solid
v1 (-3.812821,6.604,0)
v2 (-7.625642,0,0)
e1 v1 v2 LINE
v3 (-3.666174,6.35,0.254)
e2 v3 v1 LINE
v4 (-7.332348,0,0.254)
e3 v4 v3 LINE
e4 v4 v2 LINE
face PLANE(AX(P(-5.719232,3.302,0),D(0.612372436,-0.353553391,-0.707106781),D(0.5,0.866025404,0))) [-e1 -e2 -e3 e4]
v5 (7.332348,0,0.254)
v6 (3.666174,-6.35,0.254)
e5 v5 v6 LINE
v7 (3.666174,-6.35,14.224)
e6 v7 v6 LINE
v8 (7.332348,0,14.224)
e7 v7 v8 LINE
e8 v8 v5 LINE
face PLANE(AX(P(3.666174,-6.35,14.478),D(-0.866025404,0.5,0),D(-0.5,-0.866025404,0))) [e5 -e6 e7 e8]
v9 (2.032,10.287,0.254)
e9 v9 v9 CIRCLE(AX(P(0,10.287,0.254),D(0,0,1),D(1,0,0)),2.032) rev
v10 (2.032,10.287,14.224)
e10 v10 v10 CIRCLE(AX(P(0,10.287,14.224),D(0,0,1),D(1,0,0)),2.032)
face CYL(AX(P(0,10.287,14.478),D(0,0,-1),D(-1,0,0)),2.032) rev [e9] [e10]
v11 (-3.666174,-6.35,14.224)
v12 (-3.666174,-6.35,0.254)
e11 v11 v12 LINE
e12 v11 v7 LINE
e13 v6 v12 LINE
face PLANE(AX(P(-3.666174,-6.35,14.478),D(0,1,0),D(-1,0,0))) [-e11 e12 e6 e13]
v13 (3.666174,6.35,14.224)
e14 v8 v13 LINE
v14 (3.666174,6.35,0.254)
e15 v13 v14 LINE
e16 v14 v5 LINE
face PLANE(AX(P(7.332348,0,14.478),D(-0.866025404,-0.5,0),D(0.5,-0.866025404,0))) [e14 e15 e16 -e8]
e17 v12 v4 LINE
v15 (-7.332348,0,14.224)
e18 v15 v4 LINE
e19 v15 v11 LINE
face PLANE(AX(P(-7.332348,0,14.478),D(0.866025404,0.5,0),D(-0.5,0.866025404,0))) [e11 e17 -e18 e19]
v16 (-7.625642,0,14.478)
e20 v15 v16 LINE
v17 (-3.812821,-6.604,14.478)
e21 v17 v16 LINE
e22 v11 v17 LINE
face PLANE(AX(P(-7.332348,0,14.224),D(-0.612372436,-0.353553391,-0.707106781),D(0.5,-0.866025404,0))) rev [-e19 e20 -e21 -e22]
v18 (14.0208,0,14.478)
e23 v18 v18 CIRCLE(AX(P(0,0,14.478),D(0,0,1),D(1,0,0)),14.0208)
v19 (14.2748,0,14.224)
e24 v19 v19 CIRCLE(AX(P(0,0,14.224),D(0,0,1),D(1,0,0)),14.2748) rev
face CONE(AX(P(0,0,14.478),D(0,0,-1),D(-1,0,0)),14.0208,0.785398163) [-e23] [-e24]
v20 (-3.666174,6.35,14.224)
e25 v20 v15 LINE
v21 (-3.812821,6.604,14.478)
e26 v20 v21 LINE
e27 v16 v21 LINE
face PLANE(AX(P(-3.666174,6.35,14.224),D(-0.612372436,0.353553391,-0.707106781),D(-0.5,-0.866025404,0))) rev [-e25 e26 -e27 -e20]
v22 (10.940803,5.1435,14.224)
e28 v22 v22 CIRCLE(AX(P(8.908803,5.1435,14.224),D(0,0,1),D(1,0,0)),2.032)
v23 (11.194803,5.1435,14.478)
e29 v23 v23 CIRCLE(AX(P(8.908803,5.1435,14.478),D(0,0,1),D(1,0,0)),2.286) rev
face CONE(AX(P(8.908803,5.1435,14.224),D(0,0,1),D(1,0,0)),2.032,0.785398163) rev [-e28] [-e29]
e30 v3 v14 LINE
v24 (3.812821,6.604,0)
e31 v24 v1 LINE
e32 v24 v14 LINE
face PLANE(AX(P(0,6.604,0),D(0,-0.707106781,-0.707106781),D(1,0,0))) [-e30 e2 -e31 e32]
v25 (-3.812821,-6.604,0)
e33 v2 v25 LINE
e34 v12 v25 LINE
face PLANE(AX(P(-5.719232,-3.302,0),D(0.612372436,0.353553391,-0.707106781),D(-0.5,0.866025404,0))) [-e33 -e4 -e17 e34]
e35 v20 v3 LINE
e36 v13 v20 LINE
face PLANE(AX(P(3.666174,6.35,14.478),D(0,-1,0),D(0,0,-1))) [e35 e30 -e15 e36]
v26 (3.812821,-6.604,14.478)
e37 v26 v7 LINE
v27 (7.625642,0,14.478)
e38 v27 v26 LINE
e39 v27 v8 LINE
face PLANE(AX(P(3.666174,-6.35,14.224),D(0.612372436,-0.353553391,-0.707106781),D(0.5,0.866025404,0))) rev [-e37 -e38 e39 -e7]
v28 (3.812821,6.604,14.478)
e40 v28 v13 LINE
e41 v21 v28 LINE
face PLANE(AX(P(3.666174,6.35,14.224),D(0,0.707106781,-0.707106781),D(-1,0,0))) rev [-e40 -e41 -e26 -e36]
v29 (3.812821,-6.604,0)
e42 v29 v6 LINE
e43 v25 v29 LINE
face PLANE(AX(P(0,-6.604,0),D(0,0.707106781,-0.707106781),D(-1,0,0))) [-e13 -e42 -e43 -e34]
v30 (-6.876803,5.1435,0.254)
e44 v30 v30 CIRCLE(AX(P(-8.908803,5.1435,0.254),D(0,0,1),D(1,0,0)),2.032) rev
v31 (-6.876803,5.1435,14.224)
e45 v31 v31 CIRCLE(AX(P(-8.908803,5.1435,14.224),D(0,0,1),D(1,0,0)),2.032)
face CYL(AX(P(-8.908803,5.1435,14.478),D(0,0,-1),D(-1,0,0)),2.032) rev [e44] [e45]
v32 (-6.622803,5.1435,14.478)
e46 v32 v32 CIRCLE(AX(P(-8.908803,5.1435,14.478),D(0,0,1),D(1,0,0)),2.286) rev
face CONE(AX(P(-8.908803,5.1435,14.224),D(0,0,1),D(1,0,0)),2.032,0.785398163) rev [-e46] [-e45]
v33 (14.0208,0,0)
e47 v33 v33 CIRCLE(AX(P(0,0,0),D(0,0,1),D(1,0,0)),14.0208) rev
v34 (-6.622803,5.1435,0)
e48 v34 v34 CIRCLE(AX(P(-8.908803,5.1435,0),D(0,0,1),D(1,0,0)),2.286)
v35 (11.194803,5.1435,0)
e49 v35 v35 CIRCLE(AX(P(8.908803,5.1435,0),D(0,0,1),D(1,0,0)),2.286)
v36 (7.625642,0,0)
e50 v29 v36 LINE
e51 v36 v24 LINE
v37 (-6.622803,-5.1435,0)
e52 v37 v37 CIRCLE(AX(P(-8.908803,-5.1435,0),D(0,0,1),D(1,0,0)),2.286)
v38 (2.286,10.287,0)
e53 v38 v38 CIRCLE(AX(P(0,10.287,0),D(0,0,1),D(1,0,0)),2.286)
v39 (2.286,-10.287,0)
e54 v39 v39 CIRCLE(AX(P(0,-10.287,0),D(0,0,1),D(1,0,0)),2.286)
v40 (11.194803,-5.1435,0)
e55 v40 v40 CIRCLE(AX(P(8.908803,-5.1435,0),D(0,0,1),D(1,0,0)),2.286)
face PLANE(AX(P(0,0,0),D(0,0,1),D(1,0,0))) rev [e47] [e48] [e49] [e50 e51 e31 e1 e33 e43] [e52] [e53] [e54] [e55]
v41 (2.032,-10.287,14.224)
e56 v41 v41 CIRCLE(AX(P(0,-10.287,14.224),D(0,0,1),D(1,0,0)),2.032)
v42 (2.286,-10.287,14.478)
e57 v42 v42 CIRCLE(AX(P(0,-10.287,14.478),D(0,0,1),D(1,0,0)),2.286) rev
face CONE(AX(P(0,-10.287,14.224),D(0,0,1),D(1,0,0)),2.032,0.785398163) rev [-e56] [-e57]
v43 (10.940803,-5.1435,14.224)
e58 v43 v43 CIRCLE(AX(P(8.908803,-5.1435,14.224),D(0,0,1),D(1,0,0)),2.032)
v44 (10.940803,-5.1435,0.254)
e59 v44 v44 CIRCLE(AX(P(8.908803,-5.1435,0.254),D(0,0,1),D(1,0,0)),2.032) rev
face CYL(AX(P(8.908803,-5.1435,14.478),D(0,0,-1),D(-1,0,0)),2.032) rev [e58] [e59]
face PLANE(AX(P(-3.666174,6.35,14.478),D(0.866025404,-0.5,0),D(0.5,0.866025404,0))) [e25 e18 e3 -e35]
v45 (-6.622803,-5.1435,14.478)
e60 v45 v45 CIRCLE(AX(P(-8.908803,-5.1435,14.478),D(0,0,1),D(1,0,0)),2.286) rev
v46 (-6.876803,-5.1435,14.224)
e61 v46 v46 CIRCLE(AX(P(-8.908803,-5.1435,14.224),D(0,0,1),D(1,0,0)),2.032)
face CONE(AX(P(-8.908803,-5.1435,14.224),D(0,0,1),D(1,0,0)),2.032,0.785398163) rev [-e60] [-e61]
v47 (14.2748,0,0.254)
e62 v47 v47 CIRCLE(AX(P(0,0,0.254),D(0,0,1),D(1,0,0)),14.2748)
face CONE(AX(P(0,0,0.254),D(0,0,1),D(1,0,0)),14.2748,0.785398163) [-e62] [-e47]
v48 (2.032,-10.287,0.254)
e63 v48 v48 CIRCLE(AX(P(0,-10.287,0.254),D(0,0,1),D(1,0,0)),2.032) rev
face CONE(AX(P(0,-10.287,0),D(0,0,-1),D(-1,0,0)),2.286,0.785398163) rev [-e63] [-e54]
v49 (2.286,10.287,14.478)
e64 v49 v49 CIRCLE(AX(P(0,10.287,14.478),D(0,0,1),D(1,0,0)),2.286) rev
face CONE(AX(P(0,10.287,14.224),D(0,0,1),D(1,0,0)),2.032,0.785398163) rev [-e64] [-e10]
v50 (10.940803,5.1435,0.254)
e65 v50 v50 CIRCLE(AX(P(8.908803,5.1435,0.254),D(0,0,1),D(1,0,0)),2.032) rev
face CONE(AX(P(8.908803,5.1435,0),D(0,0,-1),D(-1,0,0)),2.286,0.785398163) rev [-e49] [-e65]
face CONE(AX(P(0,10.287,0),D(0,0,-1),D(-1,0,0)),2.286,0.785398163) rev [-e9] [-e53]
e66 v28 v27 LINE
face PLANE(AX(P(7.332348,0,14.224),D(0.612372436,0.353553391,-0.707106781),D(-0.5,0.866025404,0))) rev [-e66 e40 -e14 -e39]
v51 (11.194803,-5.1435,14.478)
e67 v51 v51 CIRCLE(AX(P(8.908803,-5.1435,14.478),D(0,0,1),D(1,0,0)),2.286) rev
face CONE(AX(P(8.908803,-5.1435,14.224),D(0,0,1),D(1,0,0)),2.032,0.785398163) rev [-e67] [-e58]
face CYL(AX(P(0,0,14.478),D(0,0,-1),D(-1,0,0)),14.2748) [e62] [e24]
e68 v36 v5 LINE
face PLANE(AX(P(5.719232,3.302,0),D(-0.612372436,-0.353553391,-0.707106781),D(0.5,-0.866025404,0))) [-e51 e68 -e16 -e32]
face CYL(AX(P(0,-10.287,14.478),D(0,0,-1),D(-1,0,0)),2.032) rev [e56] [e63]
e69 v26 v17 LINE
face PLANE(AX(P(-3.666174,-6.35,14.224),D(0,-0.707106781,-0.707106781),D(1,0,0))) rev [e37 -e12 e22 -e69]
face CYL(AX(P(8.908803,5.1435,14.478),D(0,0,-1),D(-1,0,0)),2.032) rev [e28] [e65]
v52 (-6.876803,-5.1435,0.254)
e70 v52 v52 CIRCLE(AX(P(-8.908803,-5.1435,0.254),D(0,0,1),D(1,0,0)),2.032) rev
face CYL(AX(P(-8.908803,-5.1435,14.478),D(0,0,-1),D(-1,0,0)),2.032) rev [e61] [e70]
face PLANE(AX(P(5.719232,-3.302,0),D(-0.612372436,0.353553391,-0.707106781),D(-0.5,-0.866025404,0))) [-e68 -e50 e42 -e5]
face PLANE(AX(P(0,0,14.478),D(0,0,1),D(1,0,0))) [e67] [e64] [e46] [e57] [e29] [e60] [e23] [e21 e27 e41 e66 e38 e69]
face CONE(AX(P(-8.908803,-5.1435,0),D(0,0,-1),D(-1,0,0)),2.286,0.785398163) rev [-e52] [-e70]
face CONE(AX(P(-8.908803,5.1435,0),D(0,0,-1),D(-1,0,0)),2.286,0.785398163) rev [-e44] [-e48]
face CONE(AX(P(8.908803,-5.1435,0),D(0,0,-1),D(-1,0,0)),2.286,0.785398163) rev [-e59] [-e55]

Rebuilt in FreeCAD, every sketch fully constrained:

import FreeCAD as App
import Part
import Sketcher

V = App.Vector
Q = App.Units.Quantity


def edges_at(feature, points):
    """Names of the edges that pass closest to the given points."""
    edges = feature.Shape.Edges
    near = lambda p: min(range(len(edges)), key=lambda i: edges[i].distToShape(Part.Vertex(*p))[0])
    return sorted({f"Edge{near(p) + 1}" for p in points})


def add_polygon(sketch, points):
    """Adds a closed chain of lines whose ends are joined by coincident constraints."""
    first, n = sketch.GeometryCount, len(points)
    for a, b in zip(points, points[1:] + points[:1]):
        sketch.addGeometry(Part.LineSegment(App.Vector(*a, 0), App.Vector(*b, 0)), False)
    for i in range(n):
        sketch.addConstraint(Sketcher.Constraint("Coincident", first + i, 2, first + (i + 1) % n, 1))

doc = App.newDocument("Part")
body = doc.addObject("PartDesign::Body", "Body")

sketch1 = doc.addObject("Sketcher::SketchObject", "Sketch")
body.addObject(sketch1)
sketch1.AttachmentSupport = (doc.XY_Plane, [""])
sketch1.MapMode = "FlatFace"
sketch1.addGeometry(Part.Circle(V(0, 0, 0), V(0, 0, 1), 14.2748), False)
sketch1.addGeometry(Part.Circle(V(-8.908803, -5.1435, 0), V(0, 0, 1), 2.032), False)
sketch1.addGeometry(Part.Circle(V(0, -10.287, 0), V(0, 0, 1), 2.032), False)
sketch1.addGeometry(Part.Circle(V(8.908803, -5.1435, 0), V(0, 0, 1), 2.032), False)
sketch1.addGeometry(Part.Circle(V(-8.908803, 5.1435, 0), V(0, 0, 1), 2.032), False)
add_polygon(sketch1, [(-3.666174, -6.35), (-7.332348, 0), (-3.666174, 6.35), (3.666174, 6.35), (7.332348, 0), (3.666174, -6.35)])
sketch1.addGeometry(Part.Circle(V(8.908803, 5.1435, 0), V(0, 0, 1), 2.032), False)
sketch1.addGeometry(Part.Circle(V(0, 10.287, 0), V(0, 0, 1), 2.032), False)
sketch1.addConstraint(Sketcher.Constraint("Horizontal", 7))
sketch1.addConstraint(Sketcher.Constraint("Horizontal", 10))
sketch1.addConstraint(Sketcher.Constraint("Coincident", 0, 3, -1, 1))
sketch1.addConstraint(Sketcher.Constraint("Equal", 1, 2))
sketch1.addConstraint(Sketcher.Constraint("Equal", 2, 3))
sketch1.addConstraint(Sketcher.Constraint("Equal", 3, 4))
sketch1.addConstraint(Sketcher.Constraint("Equal", 4, 11))
sketch1.addConstraint(Sketcher.Constraint("Equal", 11, 12))
sketch1.addConstraint(Sketcher.Constraint("Symmetric", 3, 3, 4, 3, -1, 1))
sketch1.addConstraint(Sketcher.Constraint("Symmetric", 1, 3, 11, 3, -1, 1))
sketch1.addConstraint(Sketcher.Constraint("Symmetric", 2, 3, 12, 3, -1, 1))
sketch1.addConstraint(Sketcher.Constraint("Symmetric", 5, 2, 8, 2, -1, 1))
sketch1.addConstraint(Sketcher.Constraint("Symmetric", 6, 2, 9, 2, -1, 1))
sketch1.addConstraint(Sketcher.Constraint("Symmetric", 1, 3, 3, 3, -2))
sketch1.addConstraint(Sketcher.Constraint("PointOnObject", 2, 3, -2))
sketch1.addConstraint(Sketcher.Constraint("PointOnObject", 5, 2, -1))
sketch1.addConstraint(Sketcher.Constraint("Parallel", 5, 8))
sketch1.addConstraint(Sketcher.Constraint("Vertical", 7, 2, 9, 2))
sketch1.addConstraint(Sketcher.Constraint("Diameter", 1, Q("0.16 in")))
sketch1.addConstraint(Sketcher.Constraint("Diameter", 0, Q("1.124 in")))
sketch1.addConstraint(Sketcher.Constraint("Angle", 5, Q("120 deg")))
sketch1.addConstraint(Sketcher.Constraint("DistanceY", -1, 1, 6, 2, Q("0.25 in")))
sketch1.addConstraint(Sketcher.Constraint("DistanceY", 2, 3, -1, 1, Q("0.405 in")))
sketch1.addConstraint(Sketcher.Constraint("DistanceY", 1, 3, 4, 3, Q("0.405 in")))
sketch1.addConstraint(Sketcher.Constraint("DistanceX", 7, 1, 7, 2, 7.332348))
sketch1.addConstraint(Sketcher.Constraint("DistanceX", 4, 3, 6, 2, 5.242629))
pad1 = doc.addObject("PartDesign::Pad", "Pad")
body.addObject(pad1)
pad1.Profile = sketch1
pad1.Length = Q("0.57 in")
doc.recompute()

chamfer = doc.addObject("PartDesign::Chamfer", "Chamfer")
body.addObject(chamfer)
chamfer.Base = (pad1, edges_at(pad1, [
    (0, -6.35, 0),
    (5.499, -3.175, 0),
    (5.499, 3.175, 0),
    (0, 6.35, 0),
    (-5.499, 3.175, 14.478),
    (-5.499, -3.175, 14.478),
    (0, -6.35, 14.478),
    (5.499, -3.175, 14.478),
    (5.499, 3.175, 14.478),
    (0, 6.35, 14.478),
    (-14.275, 0, 0),
    (-2.032, 10.287, 0),
    (-2.032, 10.287, 14.478),
    (6.877, 5.144, 0),
    (6.877, 5.144, 14.478),
    (6.877, -5.144, 0),
    (6.877, -5.144, 14.478),
    (-2.032, -10.287, 0),
    (-2.032, -10.287, 14.478),
    (-10.941, -5.144, 0),
    (-10.941, -5.144, 14.478),
    (-14.275, 0, 14.478),
    (-10.941, 5.144, 0),
    (-10.941, 5.144, 14.478),
    (-5.499, 3.175, 0),
    (-5.499, -3.175, 0),
]))
chamfer.Size = Q("0.01 in")

doc.recompute()
